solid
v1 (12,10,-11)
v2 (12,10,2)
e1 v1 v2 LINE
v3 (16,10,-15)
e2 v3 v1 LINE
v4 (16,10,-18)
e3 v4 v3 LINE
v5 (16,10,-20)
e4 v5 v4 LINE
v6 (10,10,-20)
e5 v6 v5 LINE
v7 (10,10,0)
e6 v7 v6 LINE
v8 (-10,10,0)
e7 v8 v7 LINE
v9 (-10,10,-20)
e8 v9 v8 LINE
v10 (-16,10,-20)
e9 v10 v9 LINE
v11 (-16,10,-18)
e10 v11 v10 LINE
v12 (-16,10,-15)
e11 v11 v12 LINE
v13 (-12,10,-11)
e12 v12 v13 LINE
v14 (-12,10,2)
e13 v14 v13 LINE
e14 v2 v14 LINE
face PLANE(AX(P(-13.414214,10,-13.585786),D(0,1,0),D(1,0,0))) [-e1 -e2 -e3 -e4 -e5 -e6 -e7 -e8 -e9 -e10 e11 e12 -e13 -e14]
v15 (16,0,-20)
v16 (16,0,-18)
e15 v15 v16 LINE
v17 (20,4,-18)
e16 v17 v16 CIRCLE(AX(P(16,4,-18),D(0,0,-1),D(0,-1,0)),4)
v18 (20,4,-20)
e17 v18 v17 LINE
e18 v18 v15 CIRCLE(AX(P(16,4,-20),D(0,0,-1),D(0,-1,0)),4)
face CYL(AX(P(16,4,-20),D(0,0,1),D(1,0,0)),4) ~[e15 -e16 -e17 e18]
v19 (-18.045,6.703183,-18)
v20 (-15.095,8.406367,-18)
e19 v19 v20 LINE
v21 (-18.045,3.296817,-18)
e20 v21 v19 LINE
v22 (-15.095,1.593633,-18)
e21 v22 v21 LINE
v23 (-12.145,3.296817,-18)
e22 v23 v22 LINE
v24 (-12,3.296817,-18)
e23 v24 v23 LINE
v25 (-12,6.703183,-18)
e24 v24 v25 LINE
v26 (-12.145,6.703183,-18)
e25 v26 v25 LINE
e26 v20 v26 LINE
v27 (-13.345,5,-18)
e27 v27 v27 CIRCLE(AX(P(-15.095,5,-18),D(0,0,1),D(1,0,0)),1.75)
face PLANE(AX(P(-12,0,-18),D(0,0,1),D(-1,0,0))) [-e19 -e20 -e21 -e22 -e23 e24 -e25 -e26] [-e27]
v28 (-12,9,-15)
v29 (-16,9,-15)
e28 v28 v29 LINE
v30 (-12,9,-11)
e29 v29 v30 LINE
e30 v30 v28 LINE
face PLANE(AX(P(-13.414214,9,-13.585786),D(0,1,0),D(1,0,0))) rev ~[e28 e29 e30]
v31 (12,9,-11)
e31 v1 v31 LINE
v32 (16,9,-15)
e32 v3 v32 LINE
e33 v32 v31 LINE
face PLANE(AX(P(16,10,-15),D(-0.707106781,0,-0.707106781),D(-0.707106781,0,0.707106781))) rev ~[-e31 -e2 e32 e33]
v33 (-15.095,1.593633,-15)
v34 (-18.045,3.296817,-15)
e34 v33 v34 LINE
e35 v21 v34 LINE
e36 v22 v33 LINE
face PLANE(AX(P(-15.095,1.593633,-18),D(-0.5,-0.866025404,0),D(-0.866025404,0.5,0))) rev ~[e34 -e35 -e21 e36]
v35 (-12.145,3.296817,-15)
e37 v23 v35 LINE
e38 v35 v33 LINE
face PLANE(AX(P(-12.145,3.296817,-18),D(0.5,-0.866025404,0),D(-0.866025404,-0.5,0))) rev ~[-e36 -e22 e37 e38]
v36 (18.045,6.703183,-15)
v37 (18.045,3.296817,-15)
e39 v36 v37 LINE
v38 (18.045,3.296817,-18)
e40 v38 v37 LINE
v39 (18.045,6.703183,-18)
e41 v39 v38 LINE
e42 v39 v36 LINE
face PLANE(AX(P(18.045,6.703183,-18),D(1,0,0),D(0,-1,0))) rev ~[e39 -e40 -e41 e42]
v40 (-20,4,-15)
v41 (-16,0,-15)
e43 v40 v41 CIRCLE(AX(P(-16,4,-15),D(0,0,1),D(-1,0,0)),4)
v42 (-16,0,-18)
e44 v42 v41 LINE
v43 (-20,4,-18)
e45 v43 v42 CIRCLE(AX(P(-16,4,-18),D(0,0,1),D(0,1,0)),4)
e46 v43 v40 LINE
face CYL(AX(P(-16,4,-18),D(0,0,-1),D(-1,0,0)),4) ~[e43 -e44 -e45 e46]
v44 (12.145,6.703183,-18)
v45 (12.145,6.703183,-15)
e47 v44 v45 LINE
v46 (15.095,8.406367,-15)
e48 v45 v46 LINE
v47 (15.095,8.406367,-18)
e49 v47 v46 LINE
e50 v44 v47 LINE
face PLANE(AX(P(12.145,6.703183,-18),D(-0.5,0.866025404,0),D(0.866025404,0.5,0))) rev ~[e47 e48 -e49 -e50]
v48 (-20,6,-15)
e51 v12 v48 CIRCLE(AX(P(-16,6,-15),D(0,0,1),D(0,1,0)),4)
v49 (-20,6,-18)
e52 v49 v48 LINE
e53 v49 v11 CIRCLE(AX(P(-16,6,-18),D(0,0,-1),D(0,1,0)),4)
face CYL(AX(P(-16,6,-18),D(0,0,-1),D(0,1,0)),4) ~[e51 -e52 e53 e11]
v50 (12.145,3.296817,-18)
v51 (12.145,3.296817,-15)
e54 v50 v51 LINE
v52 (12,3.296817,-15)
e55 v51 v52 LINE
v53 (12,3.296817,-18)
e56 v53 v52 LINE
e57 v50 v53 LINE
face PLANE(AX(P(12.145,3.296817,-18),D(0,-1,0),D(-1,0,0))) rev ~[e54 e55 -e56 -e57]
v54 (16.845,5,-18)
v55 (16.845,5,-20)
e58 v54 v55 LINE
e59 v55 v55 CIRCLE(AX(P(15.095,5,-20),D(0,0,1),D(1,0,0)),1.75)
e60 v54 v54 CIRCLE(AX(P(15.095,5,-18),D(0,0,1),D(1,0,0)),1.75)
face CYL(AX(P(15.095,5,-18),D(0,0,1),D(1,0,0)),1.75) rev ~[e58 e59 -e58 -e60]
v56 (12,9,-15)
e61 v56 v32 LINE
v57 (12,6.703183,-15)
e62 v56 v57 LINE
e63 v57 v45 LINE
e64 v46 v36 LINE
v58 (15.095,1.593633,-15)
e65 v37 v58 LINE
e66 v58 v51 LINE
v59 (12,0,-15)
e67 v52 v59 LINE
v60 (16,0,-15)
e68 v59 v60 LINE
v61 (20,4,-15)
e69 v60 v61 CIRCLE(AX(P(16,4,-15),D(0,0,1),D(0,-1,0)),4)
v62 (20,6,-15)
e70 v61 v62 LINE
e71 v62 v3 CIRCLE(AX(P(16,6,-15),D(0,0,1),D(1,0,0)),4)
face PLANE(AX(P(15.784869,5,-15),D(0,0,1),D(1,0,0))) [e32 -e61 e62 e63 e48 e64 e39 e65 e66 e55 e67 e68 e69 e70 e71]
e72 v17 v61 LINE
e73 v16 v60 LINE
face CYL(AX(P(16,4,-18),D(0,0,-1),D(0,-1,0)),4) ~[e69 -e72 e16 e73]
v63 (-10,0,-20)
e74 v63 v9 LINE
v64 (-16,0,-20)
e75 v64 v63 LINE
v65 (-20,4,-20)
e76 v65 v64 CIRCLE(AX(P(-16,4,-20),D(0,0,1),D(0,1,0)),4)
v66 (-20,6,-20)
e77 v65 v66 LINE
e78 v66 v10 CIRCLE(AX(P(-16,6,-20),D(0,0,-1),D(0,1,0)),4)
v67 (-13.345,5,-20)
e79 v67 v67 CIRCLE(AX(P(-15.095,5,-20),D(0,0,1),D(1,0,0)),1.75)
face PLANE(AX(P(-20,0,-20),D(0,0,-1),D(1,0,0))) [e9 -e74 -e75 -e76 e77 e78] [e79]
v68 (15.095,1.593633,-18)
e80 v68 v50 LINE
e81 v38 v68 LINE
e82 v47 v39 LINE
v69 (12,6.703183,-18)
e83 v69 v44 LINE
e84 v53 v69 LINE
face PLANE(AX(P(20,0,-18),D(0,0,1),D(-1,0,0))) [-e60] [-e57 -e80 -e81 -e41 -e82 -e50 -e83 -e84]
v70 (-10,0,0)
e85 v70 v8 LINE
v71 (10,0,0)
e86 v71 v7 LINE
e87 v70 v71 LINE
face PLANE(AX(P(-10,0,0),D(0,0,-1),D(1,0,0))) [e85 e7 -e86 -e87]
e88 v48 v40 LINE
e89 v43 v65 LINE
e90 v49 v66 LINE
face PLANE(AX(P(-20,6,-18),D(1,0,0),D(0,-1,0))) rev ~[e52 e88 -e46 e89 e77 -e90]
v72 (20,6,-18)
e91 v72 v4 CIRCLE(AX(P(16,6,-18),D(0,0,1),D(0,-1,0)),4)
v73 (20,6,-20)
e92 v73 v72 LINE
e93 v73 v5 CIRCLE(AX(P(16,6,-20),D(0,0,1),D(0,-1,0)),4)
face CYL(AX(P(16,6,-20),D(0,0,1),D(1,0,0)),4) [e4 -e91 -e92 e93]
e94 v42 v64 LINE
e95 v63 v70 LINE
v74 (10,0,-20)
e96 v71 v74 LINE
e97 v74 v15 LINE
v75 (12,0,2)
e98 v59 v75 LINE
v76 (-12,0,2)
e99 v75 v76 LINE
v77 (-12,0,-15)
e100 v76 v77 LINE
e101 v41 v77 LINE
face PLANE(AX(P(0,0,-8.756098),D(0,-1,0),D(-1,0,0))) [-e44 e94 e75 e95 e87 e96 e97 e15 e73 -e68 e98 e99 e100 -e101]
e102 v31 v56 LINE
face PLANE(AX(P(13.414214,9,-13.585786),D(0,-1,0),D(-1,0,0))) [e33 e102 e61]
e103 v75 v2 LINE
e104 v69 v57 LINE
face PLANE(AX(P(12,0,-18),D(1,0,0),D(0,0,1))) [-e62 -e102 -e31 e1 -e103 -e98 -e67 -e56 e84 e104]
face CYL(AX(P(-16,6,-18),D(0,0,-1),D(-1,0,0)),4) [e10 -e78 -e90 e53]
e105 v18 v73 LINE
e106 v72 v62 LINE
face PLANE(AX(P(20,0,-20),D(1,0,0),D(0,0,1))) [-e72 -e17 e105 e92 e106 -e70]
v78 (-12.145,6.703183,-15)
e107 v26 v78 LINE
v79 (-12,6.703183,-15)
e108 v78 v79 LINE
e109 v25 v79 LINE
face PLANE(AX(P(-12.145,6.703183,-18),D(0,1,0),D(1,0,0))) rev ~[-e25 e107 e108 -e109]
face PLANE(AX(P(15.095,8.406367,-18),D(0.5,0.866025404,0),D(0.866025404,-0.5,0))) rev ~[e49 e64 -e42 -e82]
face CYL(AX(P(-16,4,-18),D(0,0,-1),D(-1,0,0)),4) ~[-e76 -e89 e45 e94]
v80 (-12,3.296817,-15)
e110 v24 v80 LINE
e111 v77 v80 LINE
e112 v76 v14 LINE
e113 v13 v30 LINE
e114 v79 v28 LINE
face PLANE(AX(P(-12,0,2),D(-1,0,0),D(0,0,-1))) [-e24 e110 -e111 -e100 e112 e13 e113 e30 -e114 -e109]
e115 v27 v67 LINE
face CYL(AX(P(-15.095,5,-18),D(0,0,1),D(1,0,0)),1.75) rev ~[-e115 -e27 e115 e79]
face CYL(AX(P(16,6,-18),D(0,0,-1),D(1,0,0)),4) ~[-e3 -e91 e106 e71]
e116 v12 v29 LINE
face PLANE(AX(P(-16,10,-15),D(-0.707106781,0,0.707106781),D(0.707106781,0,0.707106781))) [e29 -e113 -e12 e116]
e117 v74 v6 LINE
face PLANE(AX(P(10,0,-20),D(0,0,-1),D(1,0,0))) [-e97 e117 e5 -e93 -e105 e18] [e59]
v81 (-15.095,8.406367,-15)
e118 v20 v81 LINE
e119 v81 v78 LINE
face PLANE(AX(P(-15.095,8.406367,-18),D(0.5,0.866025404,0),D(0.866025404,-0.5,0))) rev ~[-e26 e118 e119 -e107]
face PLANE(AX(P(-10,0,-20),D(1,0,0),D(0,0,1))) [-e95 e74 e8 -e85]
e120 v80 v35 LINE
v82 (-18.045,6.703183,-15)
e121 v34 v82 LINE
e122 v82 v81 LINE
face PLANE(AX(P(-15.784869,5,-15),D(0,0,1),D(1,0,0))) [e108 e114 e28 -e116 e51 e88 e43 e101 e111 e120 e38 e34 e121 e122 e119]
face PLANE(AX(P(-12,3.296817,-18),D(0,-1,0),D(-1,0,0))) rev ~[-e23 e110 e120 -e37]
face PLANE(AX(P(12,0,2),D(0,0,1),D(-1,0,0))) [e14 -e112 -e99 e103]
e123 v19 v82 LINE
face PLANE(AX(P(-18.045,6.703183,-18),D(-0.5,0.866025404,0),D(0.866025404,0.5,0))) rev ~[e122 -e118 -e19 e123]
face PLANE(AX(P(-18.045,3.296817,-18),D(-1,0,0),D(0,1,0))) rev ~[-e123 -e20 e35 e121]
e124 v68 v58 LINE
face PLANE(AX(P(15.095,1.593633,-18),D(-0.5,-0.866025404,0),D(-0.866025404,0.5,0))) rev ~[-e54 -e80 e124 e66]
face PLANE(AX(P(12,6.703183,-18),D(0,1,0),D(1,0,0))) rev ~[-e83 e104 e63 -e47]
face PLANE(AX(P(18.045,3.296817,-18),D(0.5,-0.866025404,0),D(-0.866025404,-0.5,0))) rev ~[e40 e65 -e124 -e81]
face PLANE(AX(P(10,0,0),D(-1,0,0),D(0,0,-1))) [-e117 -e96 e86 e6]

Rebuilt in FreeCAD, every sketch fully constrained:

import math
import FreeCAD as App
import Part
import Sketcher
from FreeCAD import Vector
Q = App.Units.Quantity


def edges_at(feature, points):
    """Names of the edges that pass closest to the given points."""
    edges = feature.Shape.Edges
    near = lambda p: min(range(len(edges)), key=lambda i: edges[i].distToShape(Part.Vertex(*p))[0])
    return sorted({f"Edge{near(p) + 1}" for p in points})


def add_polygon(sketch, points):
    """Adds a closed chain of lines whose ends are joined by coincident constraints."""
    first, n = sketch.GeometryCount, len(points)
    for a, b in zip(points, points[1:] + points[:1]):
        sketch.addGeometry(Part.LineSegment(App.Vector(*a, 0), App.Vector(*b, 0)), False)
    for i in range(n):
        sketch.addConstraint(Sketcher.Constraint("Coincident", first + i, 2, first + (i + 1) % n, 1))

doc = App.newDocument("Part")
body = doc.addObject("PartDesign::Body", "Body")

# Sketch on XZ plane
sketch1 = doc.addObject("Sketcher::SketchObject", "Sketch")
body.addObject(sketch1)
sketch1.AttachmentSupport = (doc.XZ_Plane, [""])
sketch1.MapMode = "FlatFace"
add_polygon(sketch1, [(10, 0), (-10, 0), (-10, -20), (-20, -20), (-20, -18), (-12, -18), (-12, 2), (12, 2), (12, -18), (20, -18), (20, -20), (10, -20)])  # lines 0-11
sketch1.addConstraint([
    Sketcher.Constraint("Horizontal", 0),
    Sketcher.Constraint("Vertical", 1),
    Sketcher.Constraint("Horizontal", 2),
    Sketcher.Constraint("Vertical", 3),
    Sketcher.Constraint("Horizontal", 4),
    Sketcher.Constraint("Vertical", 5),
    Sketcher.Constraint("Horizontal", 6),
    Sketcher.Constraint("Vertical", 7),
    Sketcher.Constraint("Horizontal", 8),
    Sketcher.Constraint("Vertical", 9),
    Sketcher.Constraint("Horizontal", 10),
    Sketcher.Constraint("Vertical", 11),
    Sketcher.Constraint("Symmetric", 0, 2, 11, 2, -1, 1),
    Sketcher.Constraint("Symmetric", 4, 2, 7, 2, -2),
    Sketcher.Constraint("Symmetric", 2, 2, 9, 2, -2),
    Sketcher.Constraint("Equal", 0, 1),
    Sketcher.Constraint("Equal", 1, 5),
    Sketcher.Constraint("DistanceX", 0, 2, 0, 1, Q("20 mm")),
    Sketcher.Constraint("DistanceX", 2, 2, 2, 1, Q("10 mm")),
    Sketcher.Constraint("DistanceX", 4, 1, 4, 2, Q("8 mm")),
    Sketcher.Constraint("DistanceY", 3, 1, 3, 2, Q("2 mm")),
])
pad1 = doc.addObject("PartDesign::Pad", "Pad")
body.addObject(pad1)
pad1.Profile = sketch1
pad1.Length = 10
pad1.Reversed = True
doc.recompute()

fillet = doc.addObject("PartDesign::Fillet", "Fillet")
body.addObject(fillet)
fillet.Base = (pad1, edges_at(pad1, [
    (20, 0, -19),
    (-20, 0, -19),
    (-20, 10, -19),
    (20, 10, -19),
]))
fillet.Radius = 4

# Sketch on XY plane
sketch2 = doc.addObject("Sketcher::SketchObject", "Sketch001")
body.addObject(sketch2)
sketch2.AttachmentSupport = (doc.XY_Plane, [""])
sketch2.MapMode = "FlatFace"
sketch2.AttachmentOffset = App.Placement(Vector(0, 0, -18), App.Rotation())
sketch2.addGeometry([
    Part.LineSegment(Vector(-12.145, 6.703183, 0), Vector(-12, 6.703183, 0)),  # 0
    Part.LineSegment(Vector(-12, 6.703183, 0), Vector(-12, 10, 0)),  # 1
    Part.LineSegment(Vector(-12, 10, 0), Vector(-16, 10, 0)),  # 2
    Part.ArcOfCircle(Part.Circle(Vector(-16, 6, 0), Vector(0, 0, 1), 4), math.radians(90), math.radians(180)),  # 3
    Part.LineSegment(Vector(-20, 6, 0), Vector(-20, 4, 0)),  # 4
    Part.ArcOfCircle(Part.Circle(Vector(-16, 4, 0), Vector(0, 0, 1), 4), math.radians(180), math.radians(270)),  # 5
    Part.LineSegment(Vector(-16, 0, 0), Vector(-12, 0, 0)),  # 6
    Part.LineSegment(Vector(-12, 0, 0), Vector(-12, 3.296817, 0)),  # 7
    Part.LineSegment(Vector(-12, 3.296817, 0), Vector(-12.145, 3.296817, 0)),  # 8
    Part.LineSegment(Vector(-12.145, 3.296817, 0), Vector(-15.095, 1.593633, 0)),  # 9
    Part.LineSegment(Vector(-15.095, 1.593633, 0), Vector(-18.045, 3.296817, 0)),  # 10
    Part.LineSegment(Vector(-18.045, 3.296817, 0), Vector(-18.045, 6.703183, 0)),  # 11
    Part.LineSegment(Vector(-18.045, 6.703183, 0), Vector(-15.095, 8.406367, 0)),  # 12
    Part.LineSegment(Vector(-15.095, 8.406367, 0), Vector(-12.145, 6.703183, 0)),  # 13
    Part.LineSegment(Vector(20, 4, 0), Vector(20, 6, 0)),  # 14
    Part.ArcOfCircle(Part.Circle(Vector(16, 6, 0), Vector(0, 0, 1), 4), math.radians(0), math.radians(90)),  # 15
    Part.LineSegment(Vector(16, 10, 0), Vector(12, 10, 0)),  # 16
    Part.LineSegment(Vector(12, 10, 0), Vector(12, 6.703183, 0)),  # 17
    Part.LineSegment(Vector(12, 6.703183, 0), Vector(12.145, 6.703183, 0)),  # 18
    Part.LineSegment(Vector(12.145, 6.703183, 0), Vector(15.095, 8.406367, 0)),  # 19
    Part.LineSegment(Vector(15.095, 8.406367, 0), Vector(18.045, 6.703183, 0)),  # 20
    Part.LineSegment(Vector(18.045, 6.703183, 0), Vector(18.045, 3.296817, 0)),  # 21
    Part.LineSegment(Vector(18.045, 3.296817, 0), Vector(15.095, 1.593633, 0)),  # 22
    Part.LineSegment(Vector(15.095, 1.593633, 0), Vector(12.145, 3.296817, 0)),  # 23
    Part.LineSegment(Vector(12.145, 3.296817, 0), Vector(12, 3.296817, 0)),  # 24
    Part.LineSegment(Vector(12, 3.296817, 0), Vector(12, 0, 0)),  # 25
    Part.LineSegment(Vector(12, 0, 0), Vector(16, 0, 0)),  # 26
    Part.ArcOfCircle(Part.Circle(Vector(16, 4, 0), Vector(0, 0, 1), 4), math.radians(-90), math.radians(0)),  # 27
], False)
sketch2.addConstraint([
    Sketcher.Constraint("Coincident", 0, 2, 1, 1),
    Sketcher.Constraint("Coincident", 1, 2, 2, 1),
    Sketcher.Constraint("Tangent", 2, 2, 3, 1),
    Sketcher.Constraint("Tangent", 3, 2, 4, 1),
    Sketcher.Constraint("Tangent", 4, 2, 5, 1),
    Sketcher.Constraint("Tangent", 5, 2, 6, 1),
    Sketcher.Constraint("Coincident", 6, 2, 7, 1),
    Sketcher.Constraint("Coincident", 7, 2, 8, 1),
    Sketcher.Constraint("Coincident", 8, 2, 9, 1),
    Sketcher.Constraint("Coincident", 9, 2, 10, 1),
    Sketcher.Constraint("Coincident", 10, 2, 11, 1),
    Sketcher.Constraint("Coincident", 11, 2, 12, 1),
    Sketcher.Constraint("Coincident", 12, 2, 13, 1),
    Sketcher.Constraint("Coincident", 13, 2, 0, 1),
    Sketcher.Constraint("Tangent", 14, 2, 15, 1),
    Sketcher.Constraint("Tangent", 15, 2, 16, 1),
    Sketcher.Constraint("Coincident", 16, 2, 17, 1),
    Sketcher.Constraint("Coincident", 17, 2, 18, 1),
    Sketcher.Constraint("Coincident", 18, 2, 19, 1),
    Sketcher.Constraint("Coincident", 19, 2, 20, 1),
    Sketcher.Constraint("Coincident", 20, 2, 21, 1),
    Sketcher.Constraint("Coincident", 21, 2, 22, 1),
    Sketcher.Constraint("Coincident", 22, 2, 23, 1),
    Sketcher.Constraint("Coincident", 23, 2, 24, 1),
    Sketcher.Constraint("Coincident", 24, 2, 25, 1),
    Sketcher.Constraint("Coincident", 25, 2, 26, 1),
    Sketcher.Constraint("Tangent", 26, 2, 27, 1),
    Sketcher.Constraint("Tangent", 27, 2, 14, 1),
    Sketcher.Constraint("Horizontal", 0),
    Sketcher.Constraint("Vertical", 1),
    Sketcher.Constraint("Horizontal", 2),
    Sketcher.Constraint("Vertical", 4),
    Sketcher.Constraint("Horizontal", 6),
    Sketcher.Constraint("Vertical", 7),
    Sketcher.Constraint("Horizontal", 8),
    Sketcher.Constraint("Vertical", 11),
    Sketcher.Constraint("Vertical", 14),
    Sketcher.Constraint("Horizontal", 16),
    Sketcher.Constraint("Vertical", 17),
    Sketcher.Constraint("Horizontal", 18),
    Sketcher.Constraint("Vertical", 21),
    Sketcher.Constraint("Horizontal", 24),
    Sketcher.Constraint("Vertical", 25),
    Sketcher.Constraint("Horizontal", 26),
    Sketcher.Constraint("Equal", 3, 5),
    Sketcher.Constraint("Equal", 5, 15),
    Sketcher.Constraint("Equal", 15, 27),
    Sketcher.Constraint("Symmetric", 6, 2, 25, 2, -1, 1),
    Sketcher.Constraint("Symmetric", 3, 3, 15, 3, -2),
    Sketcher.Constraint("Symmetric", 0, 2, 17, 2, -2),
    Sketcher.Constraint("Symmetric", 12, 2, 19, 2, -2),
    Sketcher.Constraint("Symmetric", 11, 2, 20, 2, -2),
    Sketcher.Constraint("Symmetric", 9, 2, 22, 2, -2),
    Sketcher.Constraint("Symmetric", 8, 2, 23, 2, -2),
    Sketcher.Constraint("PointOnObject", 5, 2, -1),
    Sketcher.Constraint("Parallel", 9, 12),
    Sketcher.Constraint("Parallel", 10, 13),
    Sketcher.Constraint("Parallel", 12, 19),
    Sketcher.Constraint("Parallel", 13, 20),
    Sketcher.Constraint("Parallel", 19, 22),
    Sketcher.Constraint("Horizontal", 8, 2, 10, 2),
    Sketcher.Constraint("Horizontal", 0, 2, 11, 2),
    Sketcher.Constraint("Vertical", 1, 2, 6, 2),
    Sketcher.Constraint("Vertical", 9, 2, 12, 2),
    Sketcher.Constraint("Equal", 1, 7),
    Sketcher.Constraint("Radius", 3, Q("4 mm")),
    Sketcher.Constraint("DistanceX", 2, 2, 2, 1, Q("4 mm")),
    Sketcher.Constraint("DistanceY", 4, 2, 4, 1, Q("2 mm")),
    Sketcher.Constraint("Angle", 9, Q("-150 deg")),
    Sketcher.Constraint("DistanceX", 3, 3, -1, 1, Q("16 mm")),
    Sketcher.Constraint("DistanceX", 0, 1, 0, 2, Q("0.145 mm")),
    Sketcher.Constraint("DistanceX", 9, 2, 8, 2, Q("2.95 mm")),
    Sketcher.Constraint("DistanceY", 1, 1, 1, 2, Q("3.296817 mm")),
])
pad2 = doc.addObject("PartDesign::Pad", "Pad001")
body.addObject(pad2)
pad2.Profile = sketch2
pad2.Length = 3

# Sketch on XY plane
sketch3 = doc.addObject("Sketcher::SketchObject", "Sketch002")
body.addObject(sketch3)
sketch3.AttachmentSupport = (doc.XY_Plane, [""])
sketch3.MapMode = "FlatFace"
sketch3.AttachmentOffset = App.Placement(Vector(0, 0, -18), App.Rotation())
sketch3.addGeometry([
    Part.Circle(Vector(-15.095, 5, 0), Vector(0, 0, 1), 1.75),
    Part.Circle(Vector(15.095, 5, 0), Vector(0, 0, 1), 1.75),
], False)
sketch3.addConstraint([
    Sketcher.Constraint("Equal", 0, 1),
    Sketcher.Constraint("Symmetric", 0, 3, 1, 3, -2),
    Sketcher.Constraint("Diameter", 0, Q("3.5 mm")),
    Sketcher.Constraint("DistanceY", -1, 1, 0, 3, Q("5 mm")),
    Sketcher.Constraint("DistanceX", 0, 3, 1, 3, Q("30.19 mm")),
])
pocket1 = doc.addObject("PartDesign::Pocket", "Pocket")
body.addObject(pocket1)
pocket1.Profile = sketch3
pocket1.Type = "ThroughAll"

# Sketch on XZ plane
sketch4 = doc.addObject("Sketcher::SketchObject", "Sketch003")
body.addObject(sketch4)
sketch4.AttachmentSupport = (doc.XZ_Plane, [""])
sketch4.MapMode = "FlatFace"
sketch4.AttachmentOffset = App.Placement(Vector(0, 0, -10), App.Rotation())
add_polygon(sketch4, [(-16, -15), (-12, -11), (-12, -15)])  # lines 0-2
add_polygon(sketch4, [(16, -15), (12, -15), (12, -11)])  # lines 3-5
sketch4.addConstraint([
    Sketcher.Constraint("Vertical", 1),
    Sketcher.Constraint("Horizontal", 2),
    Sketcher.Constraint("Horizontal", 3),
    Sketcher.Constraint("Vertical", 4),
    Sketcher.Constraint("Symmetric", 1, 2, 3, 2, -2),
    Sketcher.Constraint("Perpendicular", 0, 5),
    Sketcher.Constraint("Horizontal", 0, 2, 4, 2),
    Sketcher.Constraint("Equal", 2, 3),
    Sketcher.Constraint("DistanceX", 2, 2, 2, 1, Q("4 mm")),
    Sketcher.Constraint("DistanceX", 0, 2, -1, 1, Q("12 mm")),
    Sketcher.Constraint("DistanceY", 0, 2, -1, 1, Q("11 mm")),
])
pad3 = doc.addObject("PartDesign::Pad", "Pad002")
body.addObject(pad3)
pad3.Profile = sketch4
pad3.Length = 1

doc.recompute()
